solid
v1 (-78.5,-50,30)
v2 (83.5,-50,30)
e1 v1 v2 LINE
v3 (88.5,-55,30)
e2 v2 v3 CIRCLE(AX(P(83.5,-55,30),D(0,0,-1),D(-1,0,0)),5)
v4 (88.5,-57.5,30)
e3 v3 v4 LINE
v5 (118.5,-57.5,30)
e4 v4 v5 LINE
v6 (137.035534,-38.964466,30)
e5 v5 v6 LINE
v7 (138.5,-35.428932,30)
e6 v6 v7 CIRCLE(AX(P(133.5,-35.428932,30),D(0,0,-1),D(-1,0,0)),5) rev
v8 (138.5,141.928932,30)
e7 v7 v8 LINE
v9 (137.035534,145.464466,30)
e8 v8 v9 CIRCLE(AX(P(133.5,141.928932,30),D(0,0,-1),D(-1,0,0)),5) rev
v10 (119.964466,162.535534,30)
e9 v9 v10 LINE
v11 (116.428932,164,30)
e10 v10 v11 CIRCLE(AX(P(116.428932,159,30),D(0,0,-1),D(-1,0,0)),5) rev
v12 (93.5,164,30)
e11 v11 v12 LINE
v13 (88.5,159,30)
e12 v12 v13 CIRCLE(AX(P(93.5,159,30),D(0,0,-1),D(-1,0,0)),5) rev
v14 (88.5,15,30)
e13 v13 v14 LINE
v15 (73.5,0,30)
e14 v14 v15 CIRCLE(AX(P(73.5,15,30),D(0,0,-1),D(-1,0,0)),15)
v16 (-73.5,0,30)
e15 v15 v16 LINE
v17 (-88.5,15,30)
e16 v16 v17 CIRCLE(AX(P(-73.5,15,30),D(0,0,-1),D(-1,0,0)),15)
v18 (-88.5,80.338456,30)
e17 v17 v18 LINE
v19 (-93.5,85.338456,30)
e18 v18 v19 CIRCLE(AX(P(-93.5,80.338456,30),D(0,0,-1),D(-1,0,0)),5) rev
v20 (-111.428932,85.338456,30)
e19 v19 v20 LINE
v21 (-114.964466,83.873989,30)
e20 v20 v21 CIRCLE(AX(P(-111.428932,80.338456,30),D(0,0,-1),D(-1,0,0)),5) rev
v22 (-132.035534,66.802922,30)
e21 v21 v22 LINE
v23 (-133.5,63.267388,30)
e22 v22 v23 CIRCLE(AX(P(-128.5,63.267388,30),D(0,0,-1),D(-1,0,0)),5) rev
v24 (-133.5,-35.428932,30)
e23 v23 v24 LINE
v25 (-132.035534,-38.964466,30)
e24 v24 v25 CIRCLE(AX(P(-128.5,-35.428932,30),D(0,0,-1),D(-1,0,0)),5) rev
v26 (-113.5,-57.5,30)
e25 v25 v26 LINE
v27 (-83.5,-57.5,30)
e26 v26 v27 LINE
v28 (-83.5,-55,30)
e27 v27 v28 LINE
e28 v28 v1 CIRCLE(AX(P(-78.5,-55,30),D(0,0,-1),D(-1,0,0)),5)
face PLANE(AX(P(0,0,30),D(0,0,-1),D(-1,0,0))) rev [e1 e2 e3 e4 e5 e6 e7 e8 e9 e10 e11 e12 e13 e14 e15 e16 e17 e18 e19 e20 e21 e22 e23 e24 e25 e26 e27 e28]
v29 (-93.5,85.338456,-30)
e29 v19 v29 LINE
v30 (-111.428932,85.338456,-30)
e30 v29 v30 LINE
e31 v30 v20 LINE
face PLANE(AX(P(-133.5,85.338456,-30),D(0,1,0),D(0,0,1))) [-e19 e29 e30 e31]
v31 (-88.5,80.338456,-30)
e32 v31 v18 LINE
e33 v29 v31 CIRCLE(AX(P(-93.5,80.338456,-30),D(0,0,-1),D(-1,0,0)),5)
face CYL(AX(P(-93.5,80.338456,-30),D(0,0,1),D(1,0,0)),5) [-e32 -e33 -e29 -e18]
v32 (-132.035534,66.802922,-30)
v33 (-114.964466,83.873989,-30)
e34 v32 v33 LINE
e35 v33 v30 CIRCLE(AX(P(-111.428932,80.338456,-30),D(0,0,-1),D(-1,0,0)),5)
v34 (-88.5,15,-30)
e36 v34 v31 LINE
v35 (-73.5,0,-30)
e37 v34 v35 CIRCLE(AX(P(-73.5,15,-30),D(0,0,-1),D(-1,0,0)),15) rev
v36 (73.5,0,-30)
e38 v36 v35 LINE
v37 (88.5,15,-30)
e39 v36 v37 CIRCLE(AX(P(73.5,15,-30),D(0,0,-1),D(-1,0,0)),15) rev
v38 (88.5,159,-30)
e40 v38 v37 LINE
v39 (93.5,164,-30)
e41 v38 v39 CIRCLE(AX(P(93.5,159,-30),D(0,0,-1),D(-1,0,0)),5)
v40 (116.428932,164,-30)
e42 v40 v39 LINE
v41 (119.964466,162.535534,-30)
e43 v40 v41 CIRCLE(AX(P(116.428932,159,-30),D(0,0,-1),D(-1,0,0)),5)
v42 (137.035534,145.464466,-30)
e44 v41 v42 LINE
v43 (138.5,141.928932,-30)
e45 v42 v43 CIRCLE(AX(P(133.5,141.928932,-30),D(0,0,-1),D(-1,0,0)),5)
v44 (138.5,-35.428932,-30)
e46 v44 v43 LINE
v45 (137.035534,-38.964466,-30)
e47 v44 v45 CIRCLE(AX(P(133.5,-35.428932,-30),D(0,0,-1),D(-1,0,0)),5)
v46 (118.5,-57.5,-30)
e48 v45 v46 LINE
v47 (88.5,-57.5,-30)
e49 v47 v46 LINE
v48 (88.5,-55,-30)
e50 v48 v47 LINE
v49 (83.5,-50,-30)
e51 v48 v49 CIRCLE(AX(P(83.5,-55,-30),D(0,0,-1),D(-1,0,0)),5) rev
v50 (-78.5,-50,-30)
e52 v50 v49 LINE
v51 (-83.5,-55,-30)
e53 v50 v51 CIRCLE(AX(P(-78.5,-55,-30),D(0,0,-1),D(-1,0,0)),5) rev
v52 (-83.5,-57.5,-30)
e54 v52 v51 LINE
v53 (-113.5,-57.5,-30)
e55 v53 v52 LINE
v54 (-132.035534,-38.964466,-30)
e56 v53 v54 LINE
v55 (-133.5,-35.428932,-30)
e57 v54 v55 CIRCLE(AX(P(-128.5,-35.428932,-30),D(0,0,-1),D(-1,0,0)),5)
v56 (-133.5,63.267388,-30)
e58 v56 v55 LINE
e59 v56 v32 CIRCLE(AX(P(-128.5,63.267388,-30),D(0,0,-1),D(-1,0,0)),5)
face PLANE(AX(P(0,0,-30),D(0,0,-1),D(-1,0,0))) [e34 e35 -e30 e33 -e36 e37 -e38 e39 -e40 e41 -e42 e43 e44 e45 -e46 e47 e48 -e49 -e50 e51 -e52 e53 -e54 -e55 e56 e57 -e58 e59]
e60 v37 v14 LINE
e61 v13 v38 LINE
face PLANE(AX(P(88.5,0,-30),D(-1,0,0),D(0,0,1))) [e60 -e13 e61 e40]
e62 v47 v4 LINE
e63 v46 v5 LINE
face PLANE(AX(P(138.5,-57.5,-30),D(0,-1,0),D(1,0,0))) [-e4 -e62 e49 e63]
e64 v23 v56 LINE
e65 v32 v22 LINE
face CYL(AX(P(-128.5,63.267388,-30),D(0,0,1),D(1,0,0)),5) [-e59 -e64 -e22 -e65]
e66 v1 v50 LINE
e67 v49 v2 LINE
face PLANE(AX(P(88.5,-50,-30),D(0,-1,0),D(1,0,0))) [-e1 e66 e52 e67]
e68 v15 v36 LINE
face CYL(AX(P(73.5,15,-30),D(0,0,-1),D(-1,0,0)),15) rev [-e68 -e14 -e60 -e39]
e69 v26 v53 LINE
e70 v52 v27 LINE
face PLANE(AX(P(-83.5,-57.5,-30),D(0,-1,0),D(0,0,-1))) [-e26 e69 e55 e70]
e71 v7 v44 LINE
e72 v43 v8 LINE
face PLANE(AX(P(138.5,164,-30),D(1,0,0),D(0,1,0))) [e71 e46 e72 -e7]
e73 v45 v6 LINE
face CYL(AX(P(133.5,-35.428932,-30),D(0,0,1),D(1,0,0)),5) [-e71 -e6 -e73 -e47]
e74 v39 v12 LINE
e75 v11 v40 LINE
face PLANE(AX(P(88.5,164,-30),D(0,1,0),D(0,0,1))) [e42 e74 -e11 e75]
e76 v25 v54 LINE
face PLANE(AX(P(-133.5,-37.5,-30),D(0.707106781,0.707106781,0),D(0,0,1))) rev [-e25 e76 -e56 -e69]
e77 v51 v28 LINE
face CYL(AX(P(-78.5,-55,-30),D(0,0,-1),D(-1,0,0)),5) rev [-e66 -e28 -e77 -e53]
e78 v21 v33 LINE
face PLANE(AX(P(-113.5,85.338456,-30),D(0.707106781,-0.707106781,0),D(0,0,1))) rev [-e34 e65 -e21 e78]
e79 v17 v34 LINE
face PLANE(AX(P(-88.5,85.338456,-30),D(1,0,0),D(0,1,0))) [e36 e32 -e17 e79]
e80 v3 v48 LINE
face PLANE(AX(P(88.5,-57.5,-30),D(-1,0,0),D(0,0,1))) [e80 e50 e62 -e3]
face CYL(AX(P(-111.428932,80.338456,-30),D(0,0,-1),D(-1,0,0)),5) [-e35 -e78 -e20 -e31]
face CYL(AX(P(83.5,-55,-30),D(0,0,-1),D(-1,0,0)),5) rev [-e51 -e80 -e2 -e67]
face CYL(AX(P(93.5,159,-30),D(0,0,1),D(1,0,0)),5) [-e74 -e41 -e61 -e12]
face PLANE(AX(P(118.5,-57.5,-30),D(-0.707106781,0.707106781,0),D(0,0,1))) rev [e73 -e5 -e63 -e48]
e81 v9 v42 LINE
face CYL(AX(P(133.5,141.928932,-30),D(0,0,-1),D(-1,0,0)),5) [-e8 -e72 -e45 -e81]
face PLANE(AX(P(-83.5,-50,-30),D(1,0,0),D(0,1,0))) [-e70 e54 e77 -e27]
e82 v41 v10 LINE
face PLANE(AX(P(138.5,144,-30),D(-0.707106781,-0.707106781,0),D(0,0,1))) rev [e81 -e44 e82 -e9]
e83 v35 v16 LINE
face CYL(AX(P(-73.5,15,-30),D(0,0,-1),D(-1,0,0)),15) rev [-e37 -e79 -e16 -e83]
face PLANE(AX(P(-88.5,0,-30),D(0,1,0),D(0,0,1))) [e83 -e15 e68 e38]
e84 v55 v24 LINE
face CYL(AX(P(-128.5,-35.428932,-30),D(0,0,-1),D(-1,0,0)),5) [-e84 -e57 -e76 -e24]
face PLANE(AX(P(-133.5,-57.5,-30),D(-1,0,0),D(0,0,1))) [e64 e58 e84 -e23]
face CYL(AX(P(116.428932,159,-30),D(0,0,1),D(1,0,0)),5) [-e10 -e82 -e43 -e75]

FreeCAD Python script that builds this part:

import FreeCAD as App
import Part
import Sketcher
from FreeCAD import Vector
Q = App.Units.Quantity


def edges_at(feature, points):
    """Names of the edges that pass closest to the given points."""
    edges = feature.Shape.Edges
    near = lambda p: min(range(len(edges)), key=lambda i: edges[i].distToShape(Part.Vertex(*p))[0])
    return sorted({f"Edge{near(p) + 1}" for p in points})


def add_polygon(sketch, points):
    """Adds a closed chain of lines whose ends are joined by coincident constraints."""
    first, n = sketch.GeometryCount, len(points)
    for a, b in zip(points, points[1:] + points[:1]):
        sketch.addGeometry(Part.LineSegment(App.Vector(*a, 0), App.Vector(*b, 0)), False)
    for i in range(n):
        sketch.addConstraint(Sketcher.Constraint("Coincident", first + i, 2, first + (i + 1) % n, 1))

doc = App.newDocument("Part")
body = doc.addObject("PartDesign::Body", "Body")

# Sketch on XY plane
sketch1 = body.newObject("Sketcher::SketchObject", "Sketch")
sketch1.AttachmentSupport = (doc.getObject("XY_Plane"), [""])
sketch1.MapMode = "FlatFace"
add_polygon(sketch1, [(-88, 85), (-134, 85), (-134, -58), (-84, -58), (-84, -50), (88, -50), (88, -58), (138, -58), (138, 164), (88, 164), (88, 0), (-88, 0)])  # lines 0-11
sketch1.addConstraint(Sketcher.Constraint("Horizontal", 0))
sketch1.addConstraint(Sketcher.Constraint("Vertical", 1))
sketch1.addConstraint(Sketcher.Constraint("Horizontal", 2))
sketch1.addConstraint(Sketcher.Constraint("Vertical", 3))
sketch1.addConstraint(Sketcher.Constraint("Horizontal", 4))
sketch1.addConstraint(Sketcher.Constraint("Vertical", 5))
sketch1.addConstraint(Sketcher.Constraint("Horizontal", 6))
sketch1.addConstraint(Sketcher.Constraint("Vertical", 7))
sketch1.addConstraint(Sketcher.Constraint("Horizontal", 8))
sketch1.addConstraint(Sketcher.Constraint("Vertical", 9))
sketch1.addConstraint(Sketcher.Constraint("Horizontal", 10))
sketch1.addConstraint(Sketcher.Constraint("Vertical", 11))
sketch1.addConstraint(Sketcher.Constraint("Symmetric", 9, 2, 10, 2, -1, 1))
sketch1.addConstraint(Sketcher.Constraint("Horizontal", 2, 2, 5, 2))
sketch1.addConstraint(Sketcher.Constraint("Vertical", 5, 2, 8, 2))
sketch1.addConstraint(Sketcher.Constraint("Equal", 2, 6))
sketch1.addConstraint(Sketcher.Constraint("DistanceX", 0, 2, 0, 1, Q("45 mm")))
sketch1.addConstraint(Sketcher.Constraint("DistanceX", 2, 1, 2, 2, Q("50 mm")))
sketch1.addConstraint(Sketcher.Constraint("DistanceX", 4, 1, 4, 2, Q("172 mm")))
sketch1.addConstraint(Sketcher.Constraint("DistanceY", 9, 2, 9, 1, Q("164 mm")))
sketch1.addConstraint(Sketcher.Constraint("DistanceY", 3, 1, 3, 2, Q("7.5 mm")))
sketch1.addConstraint(Sketcher.Constraint("DistanceY", 7, 1, 7, 2, Q("221.5 mm")))
sketch1.addConstraint(Sketcher.Constraint("DistanceY", 1, 2, 1, 1, Q("142.838456 mm")))
pad1 = body.newObject("PartDesign::Pad", "Pad")
pad1.Profile = sketch1
pad1.Type = "TwoLengths"
pad1.Length = 30
pad1.Length2 = 30
doc.recompute()

chamfer = body.newObject("PartDesign::Chamfer", "Chamfer")
chamfer.Base = (pad1, edges_at(pad1, [
    (-133.5, 85.338, 0),
    (138.5, 164, 0),
    (138.5, -57.5, 0),
    (-133.5, -57.5, 0),
]))
chamfer.Size = 20
doc.recompute()

fillet = body.newObject("PartDesign::Fillet", "Fillet")
fillet.Base = (chamfer, edges_at(chamfer, [(-88.5, 0, 0), (88.5, 0, 0)]))
fillet.Radius = 15
doc.recompute()

fillet2 = body.newObject("PartDesign::Fillet", "Fillet001")
fillet2.Base = (fillet, edges_at(fillet, [
    (-88.5, 85.338, 0),
    (88.5, 164, 0),
    (88.5, -50, 0),
    (-83.5, -50, 0),
    (-133.5, 65.338, 0),
    (-133.5, -37.5, 0),
    (138.5, 144, 0),
    (138.5, -37.5, 0),
    (118.5, 164, 0),
    (-113.5, 85.338, 0),
]))
fillet2.Radius = 5

doc.recompute()
